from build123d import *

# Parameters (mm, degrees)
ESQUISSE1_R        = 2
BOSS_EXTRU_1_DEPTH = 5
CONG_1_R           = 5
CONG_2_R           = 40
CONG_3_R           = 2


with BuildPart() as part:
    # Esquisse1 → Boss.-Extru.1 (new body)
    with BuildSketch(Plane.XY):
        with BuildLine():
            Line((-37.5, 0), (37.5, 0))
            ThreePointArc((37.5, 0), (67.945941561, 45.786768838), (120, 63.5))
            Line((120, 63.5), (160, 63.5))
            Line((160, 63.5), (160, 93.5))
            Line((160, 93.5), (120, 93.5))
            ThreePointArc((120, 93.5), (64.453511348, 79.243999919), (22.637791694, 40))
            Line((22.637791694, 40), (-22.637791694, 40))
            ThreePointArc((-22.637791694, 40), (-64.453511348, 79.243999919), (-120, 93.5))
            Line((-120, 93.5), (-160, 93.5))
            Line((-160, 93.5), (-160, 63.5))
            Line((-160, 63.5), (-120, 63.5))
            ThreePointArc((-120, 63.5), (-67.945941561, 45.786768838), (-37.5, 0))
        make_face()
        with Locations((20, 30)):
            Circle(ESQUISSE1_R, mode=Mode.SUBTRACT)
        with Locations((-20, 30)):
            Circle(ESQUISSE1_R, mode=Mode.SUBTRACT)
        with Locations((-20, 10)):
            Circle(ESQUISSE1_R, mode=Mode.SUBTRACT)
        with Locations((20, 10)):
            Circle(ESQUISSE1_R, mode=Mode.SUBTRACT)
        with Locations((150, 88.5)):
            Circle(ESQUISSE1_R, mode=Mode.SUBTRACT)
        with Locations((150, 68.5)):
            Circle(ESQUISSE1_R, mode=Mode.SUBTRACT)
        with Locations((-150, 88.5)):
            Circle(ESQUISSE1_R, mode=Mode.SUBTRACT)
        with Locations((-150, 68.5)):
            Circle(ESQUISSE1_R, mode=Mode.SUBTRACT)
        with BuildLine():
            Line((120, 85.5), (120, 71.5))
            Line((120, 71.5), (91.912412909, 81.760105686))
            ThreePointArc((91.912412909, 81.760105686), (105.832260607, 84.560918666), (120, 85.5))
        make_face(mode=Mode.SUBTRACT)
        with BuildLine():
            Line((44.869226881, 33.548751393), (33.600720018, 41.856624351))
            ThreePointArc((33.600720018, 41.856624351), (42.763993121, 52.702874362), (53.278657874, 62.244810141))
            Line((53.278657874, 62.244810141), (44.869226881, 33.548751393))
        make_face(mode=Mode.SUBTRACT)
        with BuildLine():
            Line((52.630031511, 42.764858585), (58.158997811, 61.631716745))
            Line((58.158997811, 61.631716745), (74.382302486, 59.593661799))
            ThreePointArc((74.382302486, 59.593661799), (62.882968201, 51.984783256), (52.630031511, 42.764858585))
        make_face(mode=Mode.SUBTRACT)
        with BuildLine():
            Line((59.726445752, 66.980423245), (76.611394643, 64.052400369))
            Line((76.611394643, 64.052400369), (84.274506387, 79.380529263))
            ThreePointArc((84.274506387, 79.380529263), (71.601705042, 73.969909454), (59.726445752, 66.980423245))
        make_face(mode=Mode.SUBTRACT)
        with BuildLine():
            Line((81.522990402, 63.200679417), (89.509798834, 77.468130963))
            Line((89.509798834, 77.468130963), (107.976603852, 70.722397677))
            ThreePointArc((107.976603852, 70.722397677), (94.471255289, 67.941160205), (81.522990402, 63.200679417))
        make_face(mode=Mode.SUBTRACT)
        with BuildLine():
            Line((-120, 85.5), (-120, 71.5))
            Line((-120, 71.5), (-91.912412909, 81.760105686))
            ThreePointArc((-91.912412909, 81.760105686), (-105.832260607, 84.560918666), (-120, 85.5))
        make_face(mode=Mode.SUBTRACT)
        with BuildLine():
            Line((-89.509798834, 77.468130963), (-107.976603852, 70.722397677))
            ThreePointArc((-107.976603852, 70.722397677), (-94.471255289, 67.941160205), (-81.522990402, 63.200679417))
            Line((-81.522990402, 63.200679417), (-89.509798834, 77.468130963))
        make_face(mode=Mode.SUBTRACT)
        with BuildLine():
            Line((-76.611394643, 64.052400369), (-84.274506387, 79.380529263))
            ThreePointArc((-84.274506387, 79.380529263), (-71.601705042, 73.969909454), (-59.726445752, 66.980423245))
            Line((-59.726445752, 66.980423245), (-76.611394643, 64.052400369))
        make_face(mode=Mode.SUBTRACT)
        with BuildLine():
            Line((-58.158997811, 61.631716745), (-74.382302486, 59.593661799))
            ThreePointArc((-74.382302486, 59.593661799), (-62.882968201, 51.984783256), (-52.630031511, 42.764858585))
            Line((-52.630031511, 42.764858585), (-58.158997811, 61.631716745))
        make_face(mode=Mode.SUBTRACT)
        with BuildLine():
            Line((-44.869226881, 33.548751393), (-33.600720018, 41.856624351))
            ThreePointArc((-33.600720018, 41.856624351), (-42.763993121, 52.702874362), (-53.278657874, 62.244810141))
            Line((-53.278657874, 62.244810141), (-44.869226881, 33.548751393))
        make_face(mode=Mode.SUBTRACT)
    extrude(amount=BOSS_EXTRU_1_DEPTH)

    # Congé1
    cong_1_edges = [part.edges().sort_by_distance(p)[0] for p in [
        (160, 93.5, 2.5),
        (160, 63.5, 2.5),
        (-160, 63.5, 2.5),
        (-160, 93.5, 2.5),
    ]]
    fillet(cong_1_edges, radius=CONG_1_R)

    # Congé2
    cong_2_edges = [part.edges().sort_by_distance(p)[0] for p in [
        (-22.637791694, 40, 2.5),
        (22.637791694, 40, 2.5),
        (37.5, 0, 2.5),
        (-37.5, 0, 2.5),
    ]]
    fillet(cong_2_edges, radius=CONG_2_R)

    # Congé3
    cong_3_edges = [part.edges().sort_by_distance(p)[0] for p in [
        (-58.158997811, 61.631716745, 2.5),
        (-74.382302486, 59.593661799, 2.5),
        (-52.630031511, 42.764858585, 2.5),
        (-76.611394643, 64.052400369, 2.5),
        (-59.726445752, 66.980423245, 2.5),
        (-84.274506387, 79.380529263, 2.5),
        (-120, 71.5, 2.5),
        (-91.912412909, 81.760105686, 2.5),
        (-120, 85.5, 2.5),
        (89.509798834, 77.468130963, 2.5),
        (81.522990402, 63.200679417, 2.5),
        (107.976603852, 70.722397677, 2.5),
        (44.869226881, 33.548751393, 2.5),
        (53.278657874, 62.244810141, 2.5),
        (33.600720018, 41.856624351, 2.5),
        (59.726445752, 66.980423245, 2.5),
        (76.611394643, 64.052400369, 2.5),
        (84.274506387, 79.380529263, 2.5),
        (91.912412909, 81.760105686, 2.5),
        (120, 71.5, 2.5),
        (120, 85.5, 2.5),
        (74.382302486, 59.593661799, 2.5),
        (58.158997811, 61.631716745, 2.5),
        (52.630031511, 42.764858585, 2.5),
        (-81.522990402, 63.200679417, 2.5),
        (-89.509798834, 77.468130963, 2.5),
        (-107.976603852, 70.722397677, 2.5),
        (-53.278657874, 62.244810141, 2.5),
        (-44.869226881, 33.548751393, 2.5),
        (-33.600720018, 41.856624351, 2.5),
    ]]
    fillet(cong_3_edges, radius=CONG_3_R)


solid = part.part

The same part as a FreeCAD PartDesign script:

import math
import FreeCAD as App
import Part
import Sketcher

V = App.Vector


def edges_at(feature, points):
    """Names of the edges that pass closest to the given points."""
    edges = feature.Shape.Edges
    near = lambda p: min(range(len(edges)), key=lambda i: edges[i].distToShape(Part.Vertex(*p))[0])
    return sorted({f"Edge{near(p) + 1}" for p in points})

doc = App.newDocument("Part")
body = doc.addObject("PartDesign::Body", "Body")

sketch1 = doc.addObject("Sketcher::SketchObject", "Sketch")
body.addObject(sketch1)
sketch1.AttachmentSupport = (doc.XY_Plane, [""])
sketch1.MapMode = "FlatFace"
sketch1.addGeometry([
    Part.LineSegment(V(-37.5, 0, 0), V(37.5, 0, 0)),
    Part.ArcOfCircle(Part.Circle(V(120, -21.84252, 0), V(0, 0, 1), 85.34252), math.radians(90), math.radians(165.170739)),
    Part.LineSegment(V(120, 63.5, 0), V(160, 63.5, 0)),
    Part.LineSegment(V(160, 63.5, 0), V(160, 93.5, 0)),
    Part.LineSegment(V(160, 93.5, 0), V(120, 93.5, 0)),
    Part.ArcOfCircle(Part.Circle(V(120, -21.84252, 0), V(0, 0, 1), 115.34252), math.radians(90), math.radians(147.577107)),
    Part.LineSegment(V(22.637792, 40, 0), V(-22.637792, 40, 0)),
    Part.ArcOfCircle(Part.Circle(V(-120, -21.84252, 0), V(0, 0, 1), 115.34252), math.radians(32.422893), math.radians(90)),
    Part.LineSegment(V(-120, 93.5, 0), V(-160, 93.5, 0)),
    Part.LineSegment(V(-160, 93.5, 0), V(-160, 63.5, 0)),
    Part.LineSegment(V(-160, 63.5, 0), V(-120, 63.5, 0)),
    Part.ArcOfCircle(Part.Circle(V(-120, -21.84252, 0), V(0, 0, 1), 85.34252), math.radians(14.829261), math.radians(90)),
    Part.Circle(V(-20, 10, 0), V(0, 0, 1), 2),
    Part.Circle(V(-20, 30, 0), V(0, 0, 1), 2),
    Part.LineSegment(V(-33.60072, 41.856624, 0), V(-44.869227, 33.548751, 0)),
    Part.LineSegment(V(-44.869227, 33.548751, 0), V(-53.278658, 62.24481, 0)),
    Part.ArcOfCircle(Part.Circle(V(-120, -21.84252, 0), V(0, 0, 1), 107.34252), math.radians(36.400043), math.radians(51.568817)),
    Part.Circle(V(20, 10, 0), V(0, 0, 1), 2),
    Part.Circle(V(20, 30, 0), V(0, 0, 1), 2),
    Part.LineSegment(V(53.278658, 62.24481, 0), V(44.869227, 33.548751, 0)),
    Part.LineSegment(V(44.869227, 33.548751, 0), V(33.60072, 41.856624, 0)),
    Part.ArcOfCircle(Part.Circle(V(120, -21.84252, 0), V(0, 0, 1), 107.34252), math.radians(128.431183), math.radians(143.599957)),
    Part.Circle(V(-150, 68.5, 0), V(0, 0, 1), 2),
    Part.LineSegment(V(-74.382302, 59.593662, 0), V(-58.158998, 61.631717, 0)),
    Part.LineSegment(V(-58.158998, 61.631717, 0), V(-52.630032, 42.764859, 0)),
    Part.ArcOfCircle(Part.Circle(V(-120, -21.84252, 0), V(0, 0, 1), 93.34252), math.radians(43.800842), math.radians(60.743978)),
    Part.LineSegment(V(-107.976604, 70.722398, 0), V(-89.509799, 77.468131, 0)),
    Part.LineSegment(V(-89.509799, 77.468131, 0), V(-81.52299, 63.200679, 0)),
    Part.ArcOfCircle(Part.Circle(V(-120, -21.84252, 0), V(0, 0, 1), 93.34252), math.radians(65.656066), math.radians(82.599201)),
    Part.LineSegment(V(-120, 71.5, 0), V(-120, 85.5, 0)),
    Part.ArcOfCircle(Part.Circle(V(-120, -21.84252, 0), V(0, 0, 1), 107.34252), math.radians(74.831227), math.radians(90)),
    Part.LineSegment(V(-91.912413, 81.760106, 0), V(-120, 71.5, 0)),
    Part.Circle(V(-150, 88.5, 0), V(0, 0, 1), 2),
    Part.LineSegment(V(-59.726446, 66.980423, 0), V(-76.611395, 64.0524, 0)),
    Part.LineSegment(V(-76.611395, 64.0524, 0), V(-84.274506, 79.380529, 0)),
    Part.ArcOfCircle(Part.Circle(V(-120, -21.84252, 0), V(0, 0, 1), 107.34252), math.radians(55.839933), math.radians(70.56011)),
    Part.ArcOfCircle(Part.Circle(V(120, -21.84252, 0), V(0, 0, 1), 93.34252), math.radians(119.256022), math.radians(136.199158)),
    Part.LineSegment(V(52.630032, 42.764859, 0), V(58.158998, 61.631717, 0)),
    Part.LineSegment(V(58.158998, 61.631717, 0), V(74.382302, 59.593662, 0)),
    Part.Circle(V(150, 68.5, 0), V(0, 0, 1), 2),
    Part.LineSegment(V(76.611395, 64.0524, 0), V(59.726446, 66.980423, 0)),
    Part.ArcOfCircle(Part.Circle(V(120, -21.84252, 0), V(0, 0, 1), 107.34252), math.radians(109.43989), math.radians(124.160067)),
    Part.LineSegment(V(84.274506, 79.380529, 0), V(76.611395, 64.0524, 0)),
    Part.ArcOfCircle(Part.Circle(V(120, -21.84252, 0), V(0, 0, 1), 93.34252), math.radians(97.400799), math.radians(114.343934)),
    Part.LineSegment(V(81.52299, 63.200679, 0), V(89.509799, 77.468131, 0)),
    Part.LineSegment(V(89.509799, 77.468131, 0), V(107.976604, 70.722398, 0)),
    Part.ArcOfCircle(Part.Circle(V(120, -21.84252, 0), V(0, 0, 1), 107.34252), math.radians(90), math.radians(105.168773)),
    Part.LineSegment(V(120, 85.5, 0), V(120, 71.5, 0)),
    Part.LineSegment(V(120, 71.5, 0), V(91.912413, 81.760106, 0)),
    Part.Circle(V(150, 88.5, 0), V(0, 0, 1), 2),
], False)
sketch1.addConstraint([
    Sketcher.Constraint("Coincident", 0, 2, 1, 2),
    Sketcher.Constraint("Tangent", 1, 1, 2, 1),
    Sketcher.Constraint("Coincident", 2, 2, 3, 1),
    Sketcher.Constraint("Coincident", 3, 2, 4, 1),
    Sketcher.Constraint("Tangent", 4, 2, 5, 1),
    Sketcher.Constraint("Coincident", 5, 2, 6, 1),
    Sketcher.Constraint("Coincident", 6, 2, 7, 1),
    Sketcher.Constraint("Tangent", 7, 2, 8, 1),
    Sketcher.Constraint("Coincident", 8, 2, 9, 1),
    Sketcher.Constraint("Coincident", 9, 2, 10, 1),
    Sketcher.Constraint("Tangent", 10, 2, 11, 2),
    Sketcher.Constraint("Coincident", 11, 1, 0, 1),
    Sketcher.Constraint("Coincident", 14, 2, 15, 1),
    Sketcher.Constraint("Coincident", 15, 2, 16, 2),
    Sketcher.Constraint("Coincident", 16, 1, 14, 1),
    Sketcher.Constraint("Coincident", 19, 2, 20, 1),
    Sketcher.Constraint("Coincident", 20, 2, 21, 2),
    Sketcher.Constraint("Coincident", 21, 1, 19, 1),
    Sketcher.Constraint("Coincident", 23, 2, 24, 1),
    Sketcher.Constraint("Coincident", 24, 2, 25, 1),
    Sketcher.Constraint("Coincident", 25, 2, 23, 1),
    Sketcher.Constraint("Coincident", 26, 2, 27, 1),
    Sketcher.Constraint("Coincident", 27, 2, 28, 1),
    Sketcher.Constraint("Coincident", 28, 2, 26, 1),
    Sketcher.Constraint("Coincident", 29, 2, 30, 2),
    Sketcher.Constraint("Coincident", 30, 1, 31, 1),
    Sketcher.Constraint("Coincident", 31, 2, 29, 1),
    Sketcher.Constraint("Coincident", 33, 2, 34, 1),
    Sketcher.Constraint("Coincident", 34, 2, 35, 2),
    Sketcher.Constraint("Coincident", 35, 1, 33, 1),
    Sketcher.Constraint("Coincident", 36, 2, 37, 1),
    Sketcher.Constraint("Coincident", 37, 2, 38, 1),
    Sketcher.Constraint("Coincident", 38, 2, 36, 1),
    Sketcher.Constraint("Coincident", 40, 2, 41, 2),
    Sketcher.Constraint("Coincident", 41, 1, 42, 1),
    Sketcher.Constraint("Coincident", 42, 2, 40, 1),
    Sketcher.Constraint("Coincident", 43, 2, 44, 1),
    Sketcher.Constraint("Coincident", 44, 2, 45, 1),
    Sketcher.Constraint("Coincident", 45, 2, 43, 1),
    Sketcher.Constraint("Coincident", 46, 1, 47, 1),
    Sketcher.Constraint("Coincident", 47, 2, 48, 1),
    Sketcher.Constraint("Coincident", 48, 2, 46, 2),
    Sketcher.Constraint("Horizontal", 0),
    Sketcher.Constraint("Horizontal", 2),
    Sketcher.Constraint("Vertical", 3),
    Sketcher.Constraint("Horizontal", 4),
    Sketcher.Constraint("Horizontal", 6),
    Sketcher.Constraint("Horizontal", 8),
    Sketcher.Constraint("Vertical", 9),
    Sketcher.Constraint("Horizontal", 10),
    Sketcher.Constraint("Vertical", 29),
    Sketcher.Constraint("Vertical", 47),
    Sketcher.Constraint("Coincident", 5, 3, 1, 3),
    Sketcher.Constraint("Coincident", 11, 3, 7, 3),
    Sketcher.Constraint("Coincident", 16, 3, 7, 3),
    Sketcher.Constraint("Coincident", 21, 3, 1, 3),
    Sketcher.Constraint("Coincident", 25, 3, 7, 3),
    Sketcher.Constraint("Coincident", 28, 3, 7, 3),
    Sketcher.Constraint("Coincident", 30, 3, 7, 3),
    Sketcher.Constraint("Coincident", 35, 3, 7, 3),
    Sketcher.Constraint("Coincident", 36, 3, 1, 3),
    Sketcher.Constraint("Coincident", 41, 3, 1, 3),
    Sketcher.Constraint("Coincident", 43, 3, 1, 3),
    Sketcher.Constraint("Coincident", 46, 3, 1, 3),
    Sketcher.Constraint("Equal", 5, 7),
    Sketcher.Constraint("Equal", 1, 11),
    Sketcher.Constraint("Equal", 12, 13),
    Sketcher.Constraint("Equal", 13, 17),
    Sketcher.Constraint("Equal", 17, 18),
    Sketcher.Constraint("Equal", 16, 21),
    Sketcher.Constraint("Equal", 18, 22),
    Sketcher.Constraint("Equal", 25, 28),
    Sketcher.Constraint("Equal", 21, 30),
    Sketcher.Constraint("Equal", 22, 32),
    Sketcher.Constraint("Equal", 30, 35),
    Sketcher.Constraint("Equal", 28, 36),
    Sketcher.Constraint("Equal", 32, 39),
    Sketcher.Constraint("Equal", 35, 41),
    Sketcher.Constraint("Equal", 36, 43),
    Sketcher.Constraint("Equal", 41, 46),
    Sketcher.Constraint("Equal", 39, 49),
    Sketcher.Constraint("Symmetric", 0, 2, 11, 1, -1, 1),
    Sketcher.Constraint("Symmetric", 12, 3, 17, 3, -2),
    Sketcher.Constraint("Symmetric", 13, 3, 18, 3, -2),
    Sketcher.Constraint("Symmetric", 22, 3, 39, 3, -2),
    Sketcher.Constraint("Symmetric", 32, 3, 49, 3, -2),
    Sketcher.Constraint("Symmetric", 3, 2, 8, 2, -2),
    Sketcher.Constraint("Symmetric", 14, 2, 19, 2, -2),
    Sketcher.Constraint("Symmetric", 23, 2, 37, 2, -2),
    Sketcher.Constraint("Symmetric", 33, 2, 42, 2, -2),
    Sketcher.Constraint("Symmetric", 26, 2, 44, 2, -2),
    Sketcher.Constraint("Symmetric", 31, 2, 47, 2, -2),
    Sketcher.Constraint("Parallel", 15, 24),
    Sketcher.Constraint("Parallel", 26, 31),
    Sketcher.Constraint("Parallel", 19, 37),
    Sketcher.Constraint("Parallel", 45, 48),
    Sketcher.Constraint("Horizontal", 16, 1, 20, 2),
    Sketcher.Constraint("Horizontal", 15, 2, 21, 1),
    Sketcher.Constraint("Horizontal", 25, 2, 38, 2),
    Sketcher.Constraint("Horizontal", 35, 1, 40, 2),
    Sketcher.Constraint("Horizontal", 34, 2, 41, 1),
    Sketcher.Constraint("Horizontal", 27, 2, 43, 2),
    Sketcher.Constraint("Horizontal", 28, 2, 45, 2),
    Sketcher.Constraint("Vertical", 12, 3, 13, 3),
    Sketcher.Constraint("Vertical", 22, 3, 32, 3),
    Sketcher.Constraint("Vertical", 10, 2, 29, 2),
    Sketcher.Constraint("Equal", 24, 26),
    Sketcher.Constraint("Equal", 23, 27),
    Sketcher.Constraint("Equal", 19, 31),
    Sketcher.Constraint("Equal", 33, 34),
    Sketcher.Constraint("Diameter", 12, 4.0),
    Sketcher.Constraint("DistanceX", 0, 1, 0, 2, 75.0),
    Sketcher.Constraint("DistanceX", 2, 1, 2, 2, 40.0),
    Sketcher.Constraint("DistanceY", 3, 1, 3, 2, 30.0),
    Sketcher.Constraint("DistanceY", 29, 1, 29, 2, 14.0),
    Sketcher.Constraint("Distance", 14, 14.0),
    Sketcher.Constraint("DistanceX", -1, 1, 1, 3, 120.0),
    Sketcher.Constraint("DistanceX", 12, 3, -1, 1, 20.0),
    Sketcher.Constraint("DistanceY", -1, 1, 12, 3, 10.0),
    Sketcher.Constraint("DistanceY", -1, 1, 13, 3, 30.0),
    Sketcher.Constraint("DistanceX", 22, 3, -1, 1, 150.0),
    Sketcher.Constraint("DistanceY", -1, 1, 5, 2, 40.0),
    Sketcher.Constraint("DistanceY", -1, 1, 22, 3, 68.5),
    Sketcher.Constraint("DistanceY", -1, 1, 32, 3, 88.5),
    Sketcher.Constraint("DistanceY", -1, 1, 1, 1, 63.5),
    Sketcher.Constraint("DistanceY", -1, 1, 29, 2, 85.5),
    Sketcher.Constraint("Radius", 25, 93.34252),
    Sketcher.Constraint("DistanceX", 26, 2, -1, 1, 89.509799),
    Sketcher.Constraint("DistanceY", -1, 1, 33, 2, 64.0524),
    Sketcher.Constraint("Distance", 15, 29.902881),
    Sketcher.Constraint("Distance", 23, 16.350819),
    Sketcher.Constraint("Distance", 24, 19.66031),
    Sketcher.Constraint("DistanceY", -1, 1, 14, 2, 33.548751),
    Sketcher.Constraint("DistanceX", 16, 1, -1, 1, 33.60072),
    Sketcher.Constraint("DistanceX", 24, 2, -1, 1, 52.630032),
    Sketcher.Constraint("DistanceY", -1, 1, 34, 2, 79.380529),
    Sketcher.Constraint("Distance", 33, 17.136943),
])
pad1 = doc.addObject("PartDesign::Pad", "Pad")
body.addObject(pad1)
pad1.Profile = sketch1
pad1.Length = 5
doc.recompute()

fillet = doc.addObject("PartDesign::Fillet", "Fillet")
body.addObject(fillet)
fillet.Base = (pad1, edges_at(pad1, [
    (160, 93.5, 2.5),
    (160, 63.5, 2.5),
    (-160, 63.5, 2.5),
    (-160, 93.5, 2.5),
]))
fillet.Radius = 5
doc.recompute()

fillet2 = doc.addObject("PartDesign::Fillet", "Fillet001")
body.addObject(fillet2)
fillet2.Base = (fillet, edges_at(fillet, [
    (-22.638, 40, 2.5),
    (22.638, 40, 2.5),
    (37.5, 0, 2.5),
    (-37.5, 0, 2.5),
]))
fillet2.Radius = 40
doc.recompute()

fillet3 = doc.addObject("PartDesign::Fillet", "Fillet002")
body.addObject(fillet3)
fillet3.Base = (fillet2, edges_at(fillet2, [
    (-58.159, 61.632, 2.5),
    (-74.382, 59.594, 2.5),
    (-52.63, 42.765, 2.5),
    (-76.611, 64.052, 2.5),
    (-59.726, 66.98, 2.5),
    (-84.275, 79.381, 2.5),
    (-120, 71.5, 2.5),
    (-91.912, 81.76, 2.5),
    (-120, 85.5, 2.5),
    (89.51, 77.468, 2.5),
    (81.523, 63.201, 2.5),
    (107.977, 70.722, 2.5),
    (44.869, 33.549, 2.5),
    (53.279, 62.245, 2.5),
    (33.601, 41.857, 2.5),
    (59.726, 66.98, 2.5),
    (76.611, 64.052, 2.5),
    (84.275, 79.381, 2.5),
    (91.912, 81.76, 2.5),
    (120, 71.5, 2.5),
    (120, 85.5, 2.5),
    (74.382, 59.594, 2.5),
    (58.159, 61.632, 2.5),
    (52.63, 42.765, 2.5),
    (-81.523, 63.201, 2.5),
    (-89.51, 77.468, 2.5),
    (-107.977, 70.722, 2.5),
    (-53.279, 62.245, 2.5),
    (-44.869, 33.549, 2.5),
    (-33.601, 41.857, 2.5),
]))
fillet3.Radius = 2

doc.recompute()
